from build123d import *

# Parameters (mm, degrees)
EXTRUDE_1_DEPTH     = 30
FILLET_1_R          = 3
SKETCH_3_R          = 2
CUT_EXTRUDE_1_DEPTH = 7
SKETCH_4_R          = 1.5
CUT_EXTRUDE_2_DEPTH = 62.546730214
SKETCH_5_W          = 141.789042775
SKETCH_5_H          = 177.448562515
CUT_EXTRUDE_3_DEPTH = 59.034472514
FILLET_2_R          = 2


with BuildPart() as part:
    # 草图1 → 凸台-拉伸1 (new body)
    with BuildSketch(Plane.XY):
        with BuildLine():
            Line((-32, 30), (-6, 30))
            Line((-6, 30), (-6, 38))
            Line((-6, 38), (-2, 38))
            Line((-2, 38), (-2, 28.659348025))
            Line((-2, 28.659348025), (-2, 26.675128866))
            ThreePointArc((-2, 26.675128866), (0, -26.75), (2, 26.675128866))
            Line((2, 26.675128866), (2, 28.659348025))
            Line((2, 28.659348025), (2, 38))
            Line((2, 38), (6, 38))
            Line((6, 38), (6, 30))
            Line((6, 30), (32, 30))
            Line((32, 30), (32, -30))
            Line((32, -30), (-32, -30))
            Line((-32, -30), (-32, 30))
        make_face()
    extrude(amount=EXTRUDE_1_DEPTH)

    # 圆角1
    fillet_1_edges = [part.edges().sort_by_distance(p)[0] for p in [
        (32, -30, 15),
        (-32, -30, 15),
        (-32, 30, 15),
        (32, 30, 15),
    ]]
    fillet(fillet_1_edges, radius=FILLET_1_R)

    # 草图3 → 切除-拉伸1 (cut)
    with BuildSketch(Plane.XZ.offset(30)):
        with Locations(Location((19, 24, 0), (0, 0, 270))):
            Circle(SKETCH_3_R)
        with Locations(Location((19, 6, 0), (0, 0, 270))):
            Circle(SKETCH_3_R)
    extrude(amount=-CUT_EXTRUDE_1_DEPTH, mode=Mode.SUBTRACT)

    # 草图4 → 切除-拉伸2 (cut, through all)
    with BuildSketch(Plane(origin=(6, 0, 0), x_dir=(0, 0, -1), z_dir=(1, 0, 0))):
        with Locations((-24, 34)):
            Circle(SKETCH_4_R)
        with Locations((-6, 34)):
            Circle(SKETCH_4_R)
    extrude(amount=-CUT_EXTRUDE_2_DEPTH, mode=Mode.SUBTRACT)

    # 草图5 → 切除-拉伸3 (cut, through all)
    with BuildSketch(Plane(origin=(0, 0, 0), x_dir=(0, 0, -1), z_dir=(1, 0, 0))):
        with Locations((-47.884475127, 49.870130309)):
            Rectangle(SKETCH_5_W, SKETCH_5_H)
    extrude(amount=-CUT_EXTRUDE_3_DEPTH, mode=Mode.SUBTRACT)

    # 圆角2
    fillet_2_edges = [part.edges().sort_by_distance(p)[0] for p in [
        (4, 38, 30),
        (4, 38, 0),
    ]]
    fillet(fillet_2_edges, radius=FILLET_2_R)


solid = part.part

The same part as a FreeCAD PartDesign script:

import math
import FreeCAD as App
import Part
import Sketcher

V = App.Vector


def edges_at(feature, points):
    """Names of the edges that pass closest to the given points."""
    edges = feature.Shape.Edges
    near = lambda p: min(range(len(edges)), key=lambda i: edges[i].distToShape(Part.Vertex(*p))[0])
    return sorted({f"Edge{near(p) + 1}" for p in points})


def add_polygon(sketch, points):
    """Adds a closed chain of lines whose ends are joined by coincident constraints."""
    first, n = sketch.GeometryCount, len(points)
    for a, b in zip(points, points[1:] + points[:1]):
        sketch.addGeometry(Part.LineSegment(App.Vector(*a, 0), App.Vector(*b, 0)), False)
    for i in range(n):
        sketch.addConstraint(Sketcher.Constraint("Coincident", first + i, 2, first + (i + 1) % n, 1))

doc = App.newDocument("Part")
params = doc.addObject("Spreadsheet::Sheet", "Params")
for row, (alias, value) in enumerate([
    ("sketch1_width", "26 mm"),
    ("sketch1_width2", "64 mm"),
    ("sketch1_width3", "4 mm"),
    ("sketch1_height", "60 mm"),
    ("sketch1_height2", "8 mm"),
    ("pad1_length", "30 mm"),
    ("fillet_radius", "3 mm"),
    ("sketch2_diameter", "4 mm"),
    ("pocket1_length", "7 mm"),
    ("sketch3_diameter", "3 mm"),
    ("fillet2_radius", "2 mm"),
], start=1):
    params.set(f"A{row}", alias)
    params.set(f"B{row}", "=" + value)
    params.setAlias(f"B{row}", alias)

body = doc.addObject("PartDesign::Body", "Body")

sketch1 = body.newObject("Sketcher::SketchObject", "Sketch")
sketch1.AttachmentSupport = (doc.getObject("XY_Plane"), [""])
sketch1.MapMode = "FlatFace"
sketch1.addGeometry([
    Part.LineSegment(V(-6, 30, 0), V(-32, 30, 0)),
    Part.LineSegment(V(-32, 30, 0), V(-32, -30, 0)),
    Part.LineSegment(V(-32, -30, 0), V(32, -30, 0)),
    Part.LineSegment(V(32, -30, 0), V(32, 30, 0)),
    Part.LineSegment(V(32, 30, 0), V(6, 30, 0)),
    Part.LineSegment(V(6, 30, 0), V(6, 38, 0)),
    Part.LineSegment(V(6, 38, 0), V(2, 38, 0)),
    Part.LineSegment(V(2, 38, 0), V(2, 26.675129, 0)),
    Part.ArcOfCircle(Part.Circle(V(0, 0, 0), V(0, 0, 1), 26.75), math.radians(94.287798), math.radians(445.712202)),
    Part.LineSegment(V(-2, 26.675129, 0), V(-2, 38, 0)),
    Part.LineSegment(V(-2, 38, 0), V(-6, 38, 0)),
    Part.LineSegment(V(-6, 38, 0), V(-6, 30, 0)),
], False)
sketch1.addConstraint([
    Sketcher.Constraint("Coincident", 0, 2, 1, 1),
    Sketcher.Constraint("Coincident", 1, 2, 2, 1),
    Sketcher.Constraint("Coincident", 2, 2, 3, 1),
    Sketcher.Constraint("Coincident", 3, 2, 4, 1),
    Sketcher.Constraint("Coincident", 4, 2, 5, 1),
    Sketcher.Constraint("Coincident", 5, 2, 6, 1),
    Sketcher.Constraint("Coincident", 6, 2, 7, 1),
    Sketcher.Constraint("Coincident", 7, 2, 8, 2),
    Sketcher.Constraint("Coincident", 8, 1, 9, 1),
    Sketcher.Constraint("Coincident", 9, 2, 10, 1),
    Sketcher.Constraint("Coincident", 10, 2, 11, 1),
    Sketcher.Constraint("Coincident", 11, 2, 0, 1),
    Sketcher.Constraint("Horizontal", 0),
    Sketcher.Constraint("Vertical", 1),
    Sketcher.Constraint("Horizontal", 2),
    Sketcher.Constraint("Vertical", 3),
    Sketcher.Constraint("Horizontal", 4),
    Sketcher.Constraint("Vertical", 5),
    Sketcher.Constraint("Horizontal", 6),
    Sketcher.Constraint("Vertical", 7),
    Sketcher.Constraint("Vertical", 9),
    Sketcher.Constraint("Horizontal", 10),
    Sketcher.Constraint("Vertical", 11),
    Sketcher.Constraint("Coincident", 8, 3, -1, 1),
    Sketcher.Constraint("Symmetric", 0, 2, 2, 2, -1, 1),
    Sketcher.Constraint("Symmetric", 6, 2, 9, 2, -2),
    Sketcher.Constraint("Symmetric", 4, 2, 11, 2, -2),
    Sketcher.Constraint("DistanceX", 0, 2, 0, 1, 26.0),
    Sketcher.Constraint("DistanceX", 2, 1, 2, 2, 64.0),
    Sketcher.Constraint("DistanceX", 6, 2, 6, 1, 4.0),
    Sketcher.Constraint("DistanceY", 1, 2, 1, 1, 60.0),
    Sketcher.Constraint("DistanceY", 5, 1, 5, 2, 8.0),
    Sketcher.Constraint("Radius", 8, 26.75),
])
sketch1.setExpression("Constraints[27]", "Params.sketch1_width")
sketch1.setExpression("Constraints[28]", "Params.sketch1_width2")
sketch1.setExpression("Constraints[29]", "Params.sketch1_width3")
sketch1.setExpression("Constraints[30]", "Params.sketch1_height")
sketch1.setExpression("Constraints[31]", "Params.sketch1_height2")
pad1 = body.newObject("PartDesign::Pad", "Pad")
pad1.Profile = sketch1
pad1.setExpression("Length", "Params.pad1_length")
doc.recompute()

fillet = body.newObject("PartDesign::Fillet", "Fillet")
fillet.Base = (pad1, edges_at(pad1, [
    (32, -30, 15),
    (-32, -30, 15),
    (-32, 30, 15),
    (32, 30, 15),
]))
fillet.setExpression("Radius", "Params.fillet_radius")

sketch2 = body.newObject("Sketcher::SketchObject", "Sketch001")
sketch2.AttachmentSupport = (doc.getObject("XZ_Plane"), [""])
sketch2.MapMode = "FlatFace"
sketch2.AttachmentOffset = App.Placement(V(0, 0, 30), App.Rotation())
sketch2.addGeometry([
    Part.Circle(V(19, 24, 0), V(0, 0, 1), 2),
    Part.Circle(V(19, 6, 0), V(0, 0, 1), 2),
], False)
sketch2.addConstraint([
    Sketcher.Constraint("Equal", 0, 1),
    Sketcher.Constraint("Vertical", 0, 3, 1, 3),
    Sketcher.Constraint("Diameter", 0, 4.0),
    Sketcher.Constraint("DistanceX", -1, 1, 0, 3, 19.0),
    Sketcher.Constraint("DistanceY", -1, 1, 0, 3, 24.0),
    Sketcher.Constraint("DistanceY", -1, 1, 1, 3, 6.0),
])
sketch2.setExpression("Constraints[2]", "Params.sketch2_diameter")
pocket1 = body.newObject("PartDesign::Pocket", "Pocket")
pocket1.Profile = sketch2
pocket1.setExpression("Length", "Params.pocket1_length")

sketch3 = body.newObject("Sketcher::SketchObject", "Sketch002")
sketch3.AttachmentSupport = (doc.getObject("YZ_Plane"), [""])
sketch3.MapMode = "FlatFace"
sketch3.AttachmentOffset = App.Placement(V(0, 0, 6), App.Rotation())
sketch3.addGeometry([
    Part.Circle(V(34, 24, 0), V(0, 0, 1), 1.5),
    Part.Circle(V(34, 6, 0), V(0, 0, 1), 1.5),
], False)
sketch3.addConstraint([
    Sketcher.Constraint("Equal", 0, 1),
    Sketcher.Constraint("Vertical", 0, 3, 1, 3),
    Sketcher.Constraint("Diameter", 0, 3.0),
    Sketcher.Constraint("DistanceX", -1, 1, 0, 3, 34.0),
    Sketcher.Constraint("DistanceY", -1, 1, 0, 3, 24.0),
    Sketcher.Constraint("DistanceY", -1, 1, 1, 3, 6.0),
])
sketch3.setExpression("Constraints[2]", "Params.sketch3_diameter")
pocket2 = body.newObject("PartDesign::Pocket", "Pocket001")
pocket2.Profile = sketch3
pocket2.Type = "ThroughAll"

sketch4 = body.newObject("Sketcher::SketchObject", "Sketch003")
sketch4.AttachmentSupport = (doc.getObject("YZ_Plane"), [""])
sketch4.MapMode = "FlatFace"
add_polygon(sketch4, [(138.594412, 118.778997), (-38.854151, 118.778997), (-38.854151, -23.010046), (138.594412, -23.010046)])
sketch4.addConstraint([
    Sketcher.Constraint("Horizontal", 0),
    Sketcher.Constraint("Vertical", 1),
    Sketcher.Constraint("Horizontal", 2),
    Sketcher.Constraint("Vertical", 3),
    Sketcher.Constraint("DistanceX", 0, 2, 0, 1, 177.448563),
    Sketcher.Constraint("DistanceY", 1, 2, 1, 1, 141.789043),
    Sketcher.Constraint("DistanceX", 0, 2, -1, 1, 38.854151),
    Sketcher.Constraint("DistanceY", -1, 1, 0, 2, 118.778997),
])
pocket3 = body.newObject("PartDesign::Pocket", "Pocket002")
pocket3.Profile = sketch4
pocket3.Type = "ThroughAll"
doc.recompute()

fillet2 = body.newObject("PartDesign::Fillet", "Fillet001")
fillet2.Base = (pocket3, edges_at(pocket3, [(4, 38, 30), (4, 38, 0)]))
fillet2.setExpression("Radius", "Params.fillet2_radius")

doc.recompute()
